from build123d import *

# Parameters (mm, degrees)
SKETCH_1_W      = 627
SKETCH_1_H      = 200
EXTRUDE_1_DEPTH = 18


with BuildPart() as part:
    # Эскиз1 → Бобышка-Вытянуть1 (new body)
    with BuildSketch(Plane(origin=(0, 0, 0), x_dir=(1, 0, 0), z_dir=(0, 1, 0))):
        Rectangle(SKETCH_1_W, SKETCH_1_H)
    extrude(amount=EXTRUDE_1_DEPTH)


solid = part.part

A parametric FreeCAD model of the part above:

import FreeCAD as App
import Part
import Sketcher

doc = App.newDocument("Part")
body = doc.addObject("PartDesign::Body", "Body")

sketch1 = body.newObject("Sketcher::SketchObject", "Sketch")
sketch1.AttachmentSupport = (doc.getObject("XZ_Plane"), [""])
sketch1.MapMode = "FlatFace"
sketch1.addGeometry([
    Part.LineSegment(App.Vector(-314, -100, 0), App.Vector(-314, 100, 0)),
    Part.LineSegment(App.Vector(-314, 100, 0), App.Vector(314, 100, 0)),
    Part.LineSegment(App.Vector(314, 100, 0), App.Vector(314, -100, 0)),
    Part.LineSegment(App.Vector(314, -100, 0), App.Vector(-314, -100, 0)),
], False)
sketch1.addConstraint([
    Sketcher.Constraint("Coincident", 0, 2, 1, 1),
    Sketcher.Constraint("Coincident", 1, 2, 2, 1),
    Sketcher.Constraint("Coincident", 2, 2, 3, 1),
    Sketcher.Constraint("Coincident", 3, 2, 0, 1),
    Sketcher.Constraint("Vertical", 0),
    Sketcher.Constraint("Horizontal", 1),
    Sketcher.Constraint("Vertical", 2),
    Sketcher.Constraint("Horizontal", 3),
    Sketcher.Constraint("Symmetric", 0, 2, 2, 2, -1, 1),
    Sketcher.Constraint("DistanceX", 1, 1, 1, 2, 627.0),
    Sketcher.Constraint("DistanceY", 0, 1, 0, 2, 200.0),
])
pad1 = body.newObject("PartDesign::Pad", "Pad")
pad1.Profile = sketch1
pad1.Length = 18
pad1.Reversed = True

doc.recompute()
